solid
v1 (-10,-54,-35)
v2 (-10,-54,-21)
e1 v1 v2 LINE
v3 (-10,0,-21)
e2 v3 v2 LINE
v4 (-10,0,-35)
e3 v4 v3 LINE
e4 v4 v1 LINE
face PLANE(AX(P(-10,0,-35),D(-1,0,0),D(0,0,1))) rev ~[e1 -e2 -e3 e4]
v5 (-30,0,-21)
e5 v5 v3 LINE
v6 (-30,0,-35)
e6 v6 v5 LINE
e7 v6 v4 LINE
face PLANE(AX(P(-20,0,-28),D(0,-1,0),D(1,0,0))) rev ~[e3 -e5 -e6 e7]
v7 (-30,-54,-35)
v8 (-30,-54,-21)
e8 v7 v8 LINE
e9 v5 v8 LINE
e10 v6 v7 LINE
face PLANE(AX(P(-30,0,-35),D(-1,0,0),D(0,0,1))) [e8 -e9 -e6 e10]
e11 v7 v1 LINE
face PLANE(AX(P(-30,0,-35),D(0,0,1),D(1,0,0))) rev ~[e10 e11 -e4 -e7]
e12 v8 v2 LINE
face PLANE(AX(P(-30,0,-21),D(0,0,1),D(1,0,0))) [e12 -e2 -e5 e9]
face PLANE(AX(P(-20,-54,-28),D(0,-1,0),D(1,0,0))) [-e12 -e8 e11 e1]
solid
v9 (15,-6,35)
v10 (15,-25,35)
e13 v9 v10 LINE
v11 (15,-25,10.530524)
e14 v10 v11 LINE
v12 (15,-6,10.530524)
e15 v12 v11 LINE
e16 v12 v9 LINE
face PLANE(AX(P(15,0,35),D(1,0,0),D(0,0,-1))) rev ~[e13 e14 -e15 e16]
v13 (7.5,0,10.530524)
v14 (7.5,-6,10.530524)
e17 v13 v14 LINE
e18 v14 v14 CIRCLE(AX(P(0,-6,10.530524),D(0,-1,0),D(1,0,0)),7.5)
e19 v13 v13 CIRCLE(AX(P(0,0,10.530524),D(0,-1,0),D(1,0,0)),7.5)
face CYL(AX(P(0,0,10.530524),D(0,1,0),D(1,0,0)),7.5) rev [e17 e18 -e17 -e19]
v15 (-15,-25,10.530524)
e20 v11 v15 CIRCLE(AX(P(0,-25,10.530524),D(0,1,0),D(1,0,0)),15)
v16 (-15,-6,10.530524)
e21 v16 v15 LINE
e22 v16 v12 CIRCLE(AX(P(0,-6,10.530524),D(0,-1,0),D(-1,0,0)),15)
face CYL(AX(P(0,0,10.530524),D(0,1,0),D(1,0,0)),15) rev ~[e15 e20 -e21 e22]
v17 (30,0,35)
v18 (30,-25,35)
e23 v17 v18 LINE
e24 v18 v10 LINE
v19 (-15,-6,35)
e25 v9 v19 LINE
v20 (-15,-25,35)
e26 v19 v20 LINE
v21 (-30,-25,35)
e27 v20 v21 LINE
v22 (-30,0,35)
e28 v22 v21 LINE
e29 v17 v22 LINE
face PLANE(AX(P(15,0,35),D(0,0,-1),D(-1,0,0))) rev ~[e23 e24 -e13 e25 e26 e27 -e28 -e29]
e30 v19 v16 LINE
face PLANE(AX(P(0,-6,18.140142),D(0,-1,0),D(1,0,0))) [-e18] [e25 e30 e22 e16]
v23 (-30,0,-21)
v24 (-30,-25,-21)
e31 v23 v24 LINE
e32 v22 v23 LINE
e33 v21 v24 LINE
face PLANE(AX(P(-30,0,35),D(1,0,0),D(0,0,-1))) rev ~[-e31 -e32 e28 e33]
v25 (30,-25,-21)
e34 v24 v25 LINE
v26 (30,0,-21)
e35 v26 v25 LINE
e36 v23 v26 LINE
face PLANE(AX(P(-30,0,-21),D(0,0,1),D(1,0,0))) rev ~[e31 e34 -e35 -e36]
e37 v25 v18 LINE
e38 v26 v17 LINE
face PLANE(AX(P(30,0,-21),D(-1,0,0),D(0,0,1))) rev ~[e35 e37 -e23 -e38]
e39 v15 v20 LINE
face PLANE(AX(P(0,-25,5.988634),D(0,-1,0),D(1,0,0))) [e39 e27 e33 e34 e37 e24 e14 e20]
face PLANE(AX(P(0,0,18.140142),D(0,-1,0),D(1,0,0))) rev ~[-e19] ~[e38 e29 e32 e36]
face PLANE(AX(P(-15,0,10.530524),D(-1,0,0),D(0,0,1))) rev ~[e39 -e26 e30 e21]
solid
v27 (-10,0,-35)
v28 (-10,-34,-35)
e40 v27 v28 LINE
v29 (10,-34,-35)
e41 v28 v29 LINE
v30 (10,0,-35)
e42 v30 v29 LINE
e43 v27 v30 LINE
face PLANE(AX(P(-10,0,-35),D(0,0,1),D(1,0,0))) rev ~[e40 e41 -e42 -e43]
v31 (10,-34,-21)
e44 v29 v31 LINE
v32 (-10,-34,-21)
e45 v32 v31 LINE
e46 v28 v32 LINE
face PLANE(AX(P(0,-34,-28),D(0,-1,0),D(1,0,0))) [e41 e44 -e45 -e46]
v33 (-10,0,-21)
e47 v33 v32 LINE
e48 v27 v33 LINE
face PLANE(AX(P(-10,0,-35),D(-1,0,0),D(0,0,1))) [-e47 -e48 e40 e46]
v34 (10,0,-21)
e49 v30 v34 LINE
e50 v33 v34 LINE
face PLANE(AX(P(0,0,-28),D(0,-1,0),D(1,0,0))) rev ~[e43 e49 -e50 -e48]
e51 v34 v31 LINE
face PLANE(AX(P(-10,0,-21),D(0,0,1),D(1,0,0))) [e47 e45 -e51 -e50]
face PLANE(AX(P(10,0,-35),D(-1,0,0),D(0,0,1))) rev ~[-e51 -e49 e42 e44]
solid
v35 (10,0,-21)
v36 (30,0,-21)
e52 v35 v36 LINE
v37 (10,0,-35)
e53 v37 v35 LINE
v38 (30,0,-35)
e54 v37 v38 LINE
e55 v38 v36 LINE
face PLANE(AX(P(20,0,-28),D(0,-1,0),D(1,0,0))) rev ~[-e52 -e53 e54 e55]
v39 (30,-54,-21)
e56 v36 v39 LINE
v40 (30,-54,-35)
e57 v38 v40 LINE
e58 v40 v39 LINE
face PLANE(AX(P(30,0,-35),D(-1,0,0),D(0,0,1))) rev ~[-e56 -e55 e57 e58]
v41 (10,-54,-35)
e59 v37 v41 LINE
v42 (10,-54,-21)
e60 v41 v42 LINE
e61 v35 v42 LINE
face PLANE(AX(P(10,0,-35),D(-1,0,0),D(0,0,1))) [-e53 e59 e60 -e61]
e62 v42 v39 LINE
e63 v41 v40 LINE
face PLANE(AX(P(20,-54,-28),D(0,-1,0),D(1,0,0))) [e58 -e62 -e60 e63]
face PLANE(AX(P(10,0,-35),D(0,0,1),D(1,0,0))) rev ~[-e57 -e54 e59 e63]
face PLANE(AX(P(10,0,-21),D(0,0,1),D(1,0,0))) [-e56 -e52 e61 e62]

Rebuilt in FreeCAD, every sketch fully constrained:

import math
import FreeCAD as App
import Part
import Sketcher

V = App.Vector

doc = App.newDocument("Part")
body = doc.addObject("PartDesign::Body", "Body")
body.AllowCompound = True

sketch1 = body.newObject("Sketcher::SketchObject", "Sketch")
sketch1.AttachmentSupport = (doc.getObject("XZ_Plane"), [""])
sketch1.MapMode = "FlatFace"
sketch1.addGeometry([
    Part.LineSegment(V(10, -21, 0), V(10, -35, 0)),
    Part.LineSegment(V(10, -35, 0), V(30, -35, 0)),
    Part.LineSegment(V(30, -35, 0), V(30, -21, 0)),
    Part.LineSegment(V(30, -21, 0), V(10, -21, 0)),
    Part.LineSegment(V(-30, -21, 0), V(-30, -35, 0)),
    Part.LineSegment(V(-30, -35, 0), V(-10, -35, 0)),
    Part.LineSegment(V(-10, -35, 0), V(-10, -21, 0)),
    Part.LineSegment(V(-10, -21, 0), V(-30, -21, 0)),
], False)
sketch1.addConstraint([
    Sketcher.Constraint("Coincident", 0, 2, 1, 1),
    Sketcher.Constraint("Coincident", 1, 2, 2, 1),
    Sketcher.Constraint("Coincident", 2, 2, 3, 1),
    Sketcher.Constraint("Coincident", 3, 2, 0, 1),
    Sketcher.Constraint("Coincident", 4, 2, 5, 1),
    Sketcher.Constraint("Coincident", 5, 2, 6, 1),
    Sketcher.Constraint("Coincident", 6, 2, 7, 1),
    Sketcher.Constraint("Coincident", 7, 2, 4, 1),
    Sketcher.Constraint("Vertical", 0),
    Sketcher.Constraint("Horizontal", 1),
    Sketcher.Constraint("Vertical", 2),
    Sketcher.Constraint("Horizontal", 3),
    Sketcher.Constraint("Vertical", 4),
    Sketcher.Constraint("Horizontal", 5),
    Sketcher.Constraint("Vertical", 6),
    Sketcher.Constraint("Horizontal", 7),
    Sketcher.Constraint("Symmetric", 1, 2, 4, 2, -2),
    Sketcher.Constraint("Symmetric", 3, 2, 6, 2, -2),
    Sketcher.Constraint("DistanceX", 1, 1, 1, 2, 20.0),
    Sketcher.Constraint("DistanceY", 0, 2, 0, 1, 14.0),
    Sketcher.Constraint("DistanceX", -1, 1, 0, 2, 10.0),
    Sketcher.Constraint("DistanceY", 0, 2, -1, 1, 35.0),
])
pad1 = body.newObject("PartDesign::Pad", "Pad")
pad1.Profile = sketch1
pad1.Length = 54
body2 = doc.addObject("PartDesign::Body", "Body001")

sketch2 = body2.newObject("Sketcher::SketchObject", "Sketch001")
sketch2.AttachmentSupport = (doc.getObject("XZ_Plane001"), [""])
sketch2.MapMode = "FlatFace"
sketch2.addGeometry([
    Part.LineSegment(V(-10, -21, 0), V(-10, -35, 0)),
    Part.LineSegment(V(-10, -35, 0), V(10, -35, 0)),
    Part.LineSegment(V(10, -35, 0), V(10, -21, 0)),
    Part.LineSegment(V(10, -21, 0), V(-10, -21, 0)),
], False)
sketch2.addConstraint([
    Sketcher.Constraint("Coincident", 0, 2, 1, 1),
    Sketcher.Constraint("Coincident", 1, 2, 2, 1),
    Sketcher.Constraint("Coincident", 2, 2, 3, 1),
    Sketcher.Constraint("Coincident", 3, 2, 0, 1),
    Sketcher.Constraint("Vertical", 0),
    Sketcher.Constraint("Horizontal", 1),
    Sketcher.Constraint("Vertical", 2),
    Sketcher.Constraint("Horizontal", 3),
    Sketcher.Constraint("DistanceX", 1, 1, 1, 2, 20.0),
    Sketcher.Constraint("DistanceY", 0, 2, 0, 1, 14.0),
    Sketcher.Constraint("DistanceX", 0, 2, -1, 1, 10.0),
    Sketcher.Constraint("DistanceY", 0, 2, -1, 1, 35.0),
])
pad2 = body2.newObject("PartDesign::Pad", "Pad001")
pad2.Profile = sketch2
pad2.Length = 34
body3 = doc.addObject("PartDesign::Body", "Body002")

sketch3 = body3.newObject("Sketcher::SketchObject", "Sketch002")
sketch3.AttachmentSupport = (doc.getObject("XZ_Plane002"), [""])
sketch3.MapMode = "FlatFace"
sketch3.addGeometry([
    Part.LineSegment(V(-30, 35, 0), V(-30, -21, 0)),
    Part.LineSegment(V(-30, -21, 0), V(30, -21, 0)),
    Part.LineSegment(V(30, -21, 0), V(30, 35, 0)),
    Part.LineSegment(V(30, 35, 0), V(15, 35, 0)),
    Part.LineSegment(V(15, 35, 0), V(15, 10.530524, 0)),
    Part.ArcOfCircle(Part.Circle(V(0, 10.530524, 0), V(0, 0, 1), 15), math.radians(180), math.radians(360)),
    Part.LineSegment(V(-15, 10.530524, 0), V(-15, 35, 0)),
    Part.LineSegment(V(-15, 35, 0), V(-30, 35, 0)),
], False)
sketch3.addConstraint([
    Sketcher.Constraint("Coincident", 0, 2, 1, 1),
    Sketcher.Constraint("Coincident", 1, 2, 2, 1),
    Sketcher.Constraint("Coincident", 2, 2, 3, 1),
    Sketcher.Constraint("Coincident", 3, 2, 4, 1),
    Sketcher.Constraint("Tangent", 4, 2, 5, 2),
    Sketcher.Constraint("Tangent", 5, 1, 6, 1),
    Sketcher.Constraint("Coincident", 6, 2, 7, 1),
    Sketcher.Constraint("Coincident", 7, 2, 0, 1),
    Sketcher.Constraint("Vertical", 0),
    Sketcher.Constraint("Horizontal", 1),
    Sketcher.Constraint("Vertical", 2),
    Sketcher.Constraint("Horizontal", 3),
    Sketcher.Constraint("Vertical", 4),
    Sketcher.Constraint("Vertical", 6),
    Sketcher.Constraint("Horizontal", 7),
    Sketcher.Constraint("Symmetric", 3, 2, 6, 2, -2),
    Sketcher.Constraint("Equal", 3, 7),
    Sketcher.Constraint("Radius", 5, 15.0),
    Sketcher.Constraint("DistanceX", 1, 1, 1, 2, 60.0),
    Sketcher.Constraint("DistanceY", 0, 2, 0, 1, 56.0),
    Sketcher.Constraint("DistanceY", 0, 2, -1, 1, 21.0),
    Sketcher.Constraint("DistanceY", 4, 2, 4, 1, 24.469476),
])
pad3 = body3.newObject("PartDesign::Pad", "Pad002")
pad3.Profile = sketch3
pad3.Length = 25

sketch4 = body3.newObject("Sketcher::SketchObject", "Sketch003")
sketch4.AttachmentSupport = (doc.getObject("XZ_Plane002"), [""])
sketch4.MapMode = "FlatFace"
sketch4.addGeometry([
    Part.LineSegment(V(15, 35, 0), V(-15, 35, 0)),
    Part.LineSegment(V(-15, 35, 0), V(-15, 10.530524, 0)),
    Part.ArcOfCircle(Part.Circle(V(0, 10.530524, 0), V(0, 0, 1), 15), math.radians(180), math.radians(360)),
    Part.LineSegment(V(15, 10.530524, 0), V(15, 35, 0)),
    Part.Circle(V(0, 10.530524, 0), V(0, 0, 1), 7.5),
], False)
sketch4.addConstraint([
    Sketcher.Constraint("Coincident", 0, 2, 1, 1),
    Sketcher.Constraint("Tangent", 1, 2, 2, 1),
    Sketcher.Constraint("Tangent", 2, 2, 3, 1),
    Sketcher.Constraint("Coincident", 3, 2, 0, 1),
    Sketcher.Constraint("Horizontal", 0),
    Sketcher.Constraint("Vertical", 1),
    Sketcher.Constraint("Vertical", 3),
    Sketcher.Constraint("Coincident", 4, 3, 2, 3),
    Sketcher.Constraint("PointOnObject", 2, 3, -2),
    Sketcher.Constraint("Diameter", 4, 15.0),
    Sketcher.Constraint("Radius", 2, 15.0),
    Sketcher.Constraint("DistanceY", -1, 1, 0, 2, 35.0),
    Sketcher.Constraint("DistanceY", 1, 2, 1, 1, 24.469476),
])
pad4 = body3.newObject("PartDesign::Pad", "Pad003")
pad4.Profile = sketch4
pad4.Length = 6

doc.recompute()
